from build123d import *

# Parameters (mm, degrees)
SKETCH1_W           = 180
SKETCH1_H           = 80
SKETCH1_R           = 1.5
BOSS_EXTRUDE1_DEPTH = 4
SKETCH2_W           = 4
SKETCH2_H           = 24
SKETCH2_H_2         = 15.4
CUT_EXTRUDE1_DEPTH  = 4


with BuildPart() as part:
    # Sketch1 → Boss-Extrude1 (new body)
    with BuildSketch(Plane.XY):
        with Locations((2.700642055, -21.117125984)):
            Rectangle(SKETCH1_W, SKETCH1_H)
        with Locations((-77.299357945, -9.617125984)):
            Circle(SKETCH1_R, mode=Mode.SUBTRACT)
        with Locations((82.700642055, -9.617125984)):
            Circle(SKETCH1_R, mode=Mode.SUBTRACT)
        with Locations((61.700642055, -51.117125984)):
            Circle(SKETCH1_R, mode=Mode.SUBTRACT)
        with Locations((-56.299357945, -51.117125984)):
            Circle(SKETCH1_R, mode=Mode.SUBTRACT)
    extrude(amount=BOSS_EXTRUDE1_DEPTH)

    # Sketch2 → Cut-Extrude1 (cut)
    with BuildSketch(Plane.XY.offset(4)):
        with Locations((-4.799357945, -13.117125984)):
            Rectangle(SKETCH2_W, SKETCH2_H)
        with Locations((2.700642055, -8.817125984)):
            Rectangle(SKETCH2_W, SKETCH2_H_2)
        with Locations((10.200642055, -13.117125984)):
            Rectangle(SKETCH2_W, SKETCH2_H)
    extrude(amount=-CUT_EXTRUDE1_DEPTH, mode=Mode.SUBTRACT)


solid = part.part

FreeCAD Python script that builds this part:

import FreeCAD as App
import Part
import Sketcher
from FreeCAD import Vector
Q = App.Units.Quantity

doc = App.newDocument("Part")
body = doc.addObject("PartDesign::Body", "Body")

# Sketch on XY plane
sketch1 = doc.addObject("Sketcher::SketchObject", "Sketch")
body.addObject(sketch1)
sketch1.AttachmentSupport = (doc.XY_Plane, [""])
sketch1.MapMode = "FlatFace"
sketch1.addGeometry([
    Part.LineSegment(Vector(-87.3, 18.9, 0), Vector(-87.3, -61.1, 0)),  # 0
    Part.LineSegment(Vector(-87.3, -61.1, 0), Vector(92.7, -61.1, 0)),  # 1
    Part.LineSegment(Vector(92.7, -61.1, 0), Vector(92.7, 18.9, 0)),  # 2
    Part.LineSegment(Vector(92.7, 18.9, 0), Vector(-87.3, 18.9, 0)),  # 3
    Part.Circle(Vector(-56.3, -51.1, 0), Vector(0, 0, 1), 1.5),  # 4
    Part.Circle(Vector(61.7, -51.1, 0), Vector(0, 0, 1), 1.5),  # 5
    Part.Circle(Vector(-77.3, -9.6, 0), Vector(0, 0, 1), 1.5),  # 6
    Part.Circle(Vector(82.7, -9.6, 0), Vector(0, 0, 1), 1.5),  # 7
], False)
sketch1.addConstraint([
    Sketcher.Constraint("Coincident", 0, 2, 1, 1),
    Sketcher.Constraint("Coincident", 1, 2, 2, 1),
    Sketcher.Constraint("Coincident", 2, 2, 3, 1),
    Sketcher.Constraint("Coincident", 3, 2, 0, 1),
    Sketcher.Constraint("Vertical", 0),
    Sketcher.Constraint("Horizontal", 1),
    Sketcher.Constraint("Vertical", 2),
    Sketcher.Constraint("Horizontal", 3),
    Sketcher.Constraint("Equal", 4, 5),
    Sketcher.Constraint("Equal", 5, 6),
    Sketcher.Constraint("Equal", 6, 7),
    Sketcher.Constraint("Horizontal", 4, 3, 5, 3),
    Sketcher.Constraint("Horizontal", 6, 3, 7, 3),
    Sketcher.Constraint("Diameter", 4, Q("3 mm")),
    Sketcher.Constraint("DistanceX", 1, 1, 1, 2, Q("180 mm")),
    Sketcher.Constraint("DistanceY", 0, 2, 0, 1, Q("80 mm")),
    Sketcher.Constraint("DistanceX", 4, 3, 5, 3, Q("118 mm")),
    Sketcher.Constraint("DistanceX", 6, 3, 4, 3, Q("21 mm")),
    Sketcher.Constraint("DistanceX", 5, 3, 7, 3, Q("21 mm")),
    Sketcher.Constraint("DistanceX", 0, 2, 4, 3, Q("31 mm")),
    Sketcher.Constraint("DistanceY", 0, 2, 4, 3, Q("10 mm")),
    Sketcher.Constraint("DistanceY", 4, 3, 6, 3, Q("41.5 mm")),
    Sketcher.Constraint("DistanceX", 4, 3, -1, 1, Q("56.299358 mm")),
    Sketcher.Constraint("DistanceY", 4, 3, -1, 1, Q("51.117126 mm")),
])
pad1 = doc.addObject("PartDesign::Pad", "Pad")
body.addObject(pad1)
pad1.Profile = sketch1
pad1.Length = 4

# Sketch on XY plane
sketch2 = doc.addObject("Sketcher::SketchObject", "Sketch001")
body.addObject(sketch2)
sketch2.AttachmentSupport = (doc.XY_Plane, [""])
sketch2.MapMode = "FlatFace"
sketch2.AttachmentOffset = App.Placement(Vector(0, 0, 4), App.Rotation())
sketch2.addGeometry([
    Part.LineSegment(Vector(-6.8, -1.1, 0), Vector(-6.8, -25.1, 0)),  # 0
    Part.LineSegment(Vector(-6.8, -25.1, 0), Vector(-2.8, -25.1, 0)),  # 1
    Part.LineSegment(Vector(-2.8, -25.1, 0), Vector(-2.8, -1.1, 0)),  # 2
    Part.LineSegment(Vector(-2.8, -1.1, 0), Vector(-6.8, -1.1, 0)),  # 3
    Part.LineSegment(Vector(0.7, -1.1, 0), Vector(0.7, -16.5, 0)),  # 4
    Part.LineSegment(Vector(0.7, -16.5, 0), Vector(4.7, -16.5, 0)),  # 5
    Part.LineSegment(Vector(4.7, -16.5, 0), Vector(4.7, -1.1, 0)),  # 6
    Part.LineSegment(Vector(4.7, -1.1, 0), Vector(0.7, -1.1, 0)),  # 7
    Part.LineSegment(Vector(8.2, -1.1, 0), Vector(8.2, -25.1, 0)),  # 8
    Part.LineSegment(Vector(8.2, -25.1, 0), Vector(12.2, -25.1, 0)),  # 9
    Part.LineSegment(Vector(12.2, -25.1, 0), Vector(12.2, -1.1, 0)),  # 10
    Part.LineSegment(Vector(12.2, -1.1, 0), Vector(8.2, -1.1, 0)),  # 11
], False)
sketch2.addConstraint([
    Sketcher.Constraint("Coincident", 0, 2, 1, 1),
    Sketcher.Constraint("Coincident", 1, 2, 2, 1),
    Sketcher.Constraint("Coincident", 2, 2, 3, 1),
    Sketcher.Constraint("Coincident", 3, 2, 0, 1),
    Sketcher.Constraint("Coincident", 4, 2, 5, 1),
    Sketcher.Constraint("Coincident", 5, 2, 6, 1),
    Sketcher.Constraint("Coincident", 6, 2, 7, 1),
    Sketcher.Constraint("Coincident", 7, 2, 4, 1),
    Sketcher.Constraint("Coincident", 8, 2, 9, 1),
    Sketcher.Constraint("Coincident", 9, 2, 10, 1),
    Sketcher.Constraint("Coincident", 10, 2, 11, 1),
    Sketcher.Constraint("Coincident", 11, 2, 8, 1),
    Sketcher.Constraint("Vertical", 0),
    Sketcher.Constraint("Horizontal", 1),
    Sketcher.Constraint("Vertical", 2),
    Sketcher.Constraint("Horizontal", 3),
    Sketcher.Constraint("Vertical", 4),
    Sketcher.Constraint("Horizontal", 5),
    Sketcher.Constraint("Vertical", 6),
    Sketcher.Constraint("Horizontal", 7),
    Sketcher.Constraint("Vertical", 8),
    Sketcher.Constraint("Horizontal", 9),
    Sketcher.Constraint("Vertical", 10),
    Sketcher.Constraint("Horizontal", 11),
    Sketcher.Constraint("Horizontal", 3, 2, 6, 2),
    Sketcher.Constraint("Horizontal", 1, 2, 8, 2),
    Sketcher.Constraint("Horizontal", 7, 2, 10, 2),
    Sketcher.Constraint("Equal", 3, 5),
    Sketcher.Constraint("Equal", 7, 9),
    Sketcher.Constraint("DistanceX", 1, 1, 1, 2, Q("4 mm")),
    Sketcher.Constraint("DistanceY", 0, 2, 0, 1, Q("24 mm")),
    Sketcher.Constraint("DistanceY", 4, 2, 4, 1, Q("15.4 mm")),
    Sketcher.Constraint("DistanceX", 1, 2, 8, 2, Q("11 mm")),
    Sketcher.Constraint("DistanceX", 1, 2, 4, 2, Q("3.5 mm")),
    Sketcher.Constraint("DistanceX", 0, 2, -1, 1, Q("6.799358 mm")),
    Sketcher.Constraint("DistanceY", 0, 2, -1, 1, Q("25.117126 mm")),
])
pocket1 = doc.addObject("PartDesign::Pocket", "Pocket")
body.addObject(pocket1)
pocket1.Profile = sketch2
pocket1.Length = 4

doc.recompute()
